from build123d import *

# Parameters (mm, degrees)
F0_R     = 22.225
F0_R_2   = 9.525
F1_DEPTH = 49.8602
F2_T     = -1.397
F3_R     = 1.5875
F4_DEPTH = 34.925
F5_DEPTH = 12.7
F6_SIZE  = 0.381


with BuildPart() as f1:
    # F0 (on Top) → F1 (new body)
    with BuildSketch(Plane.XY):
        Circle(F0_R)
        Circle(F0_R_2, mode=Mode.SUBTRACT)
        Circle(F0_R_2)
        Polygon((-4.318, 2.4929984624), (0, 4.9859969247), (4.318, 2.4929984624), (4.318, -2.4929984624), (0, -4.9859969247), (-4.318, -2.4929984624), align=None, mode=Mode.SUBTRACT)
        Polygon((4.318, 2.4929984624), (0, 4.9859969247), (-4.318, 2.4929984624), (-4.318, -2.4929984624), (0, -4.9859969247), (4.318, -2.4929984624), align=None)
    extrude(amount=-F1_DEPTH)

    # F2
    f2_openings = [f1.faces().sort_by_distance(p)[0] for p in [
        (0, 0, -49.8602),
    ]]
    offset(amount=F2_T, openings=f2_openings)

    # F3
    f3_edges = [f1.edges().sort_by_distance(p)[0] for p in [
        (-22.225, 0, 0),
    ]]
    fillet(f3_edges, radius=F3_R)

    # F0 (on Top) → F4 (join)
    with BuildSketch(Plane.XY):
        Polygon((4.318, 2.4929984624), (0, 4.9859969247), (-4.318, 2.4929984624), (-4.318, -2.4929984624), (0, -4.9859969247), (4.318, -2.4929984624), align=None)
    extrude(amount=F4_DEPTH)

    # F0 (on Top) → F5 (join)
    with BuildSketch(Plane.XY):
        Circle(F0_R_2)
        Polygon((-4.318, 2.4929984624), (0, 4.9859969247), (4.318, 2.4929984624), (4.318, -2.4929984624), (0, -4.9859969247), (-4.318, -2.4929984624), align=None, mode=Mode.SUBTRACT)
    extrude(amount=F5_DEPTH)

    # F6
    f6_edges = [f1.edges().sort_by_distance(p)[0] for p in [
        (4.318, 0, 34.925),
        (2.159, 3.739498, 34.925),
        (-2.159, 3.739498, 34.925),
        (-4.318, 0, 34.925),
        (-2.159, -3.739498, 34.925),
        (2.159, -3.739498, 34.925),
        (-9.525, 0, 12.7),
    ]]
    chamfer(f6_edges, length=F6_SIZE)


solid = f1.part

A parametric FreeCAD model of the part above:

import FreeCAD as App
import Part
import Sketcher
from FreeCAD import Vector
Q = App.Units.Quantity


def edges_at(feature, points):
    """Names of the edges that pass closest to the given points."""
    edges = feature.Shape.Edges
    near = lambda p: min(range(len(edges)), key=lambda i: edges[i].distToShape(Part.Vertex(*p))[0])
    return sorted({f"Edge{near(p) + 1}" for p in points})


def faces_at(feature, points):
    """Names of the faces that lie closest to the given points."""
    faces = feature.Shape.Faces
    near = lambda p: min(range(len(faces)), key=lambda i: faces[i].distToShape(Part.Vertex(*p))[0])
    return sorted({f"Face{near(p) + 1}" for p in points})


def add_polygon(sketch, points):
    """Adds a closed chain of lines whose ends are joined by coincident constraints."""
    first, n = sketch.GeometryCount, len(points)
    for a, b in zip(points, points[1:] + points[:1]):
        sketch.addGeometry(Part.LineSegment(App.Vector(*a, 0), App.Vector(*b, 0)), False)
    for i in range(n):
        sketch.addConstraint(Sketcher.Constraint("Coincident", first + i, 2, first + (i + 1) % n, 1))

doc = App.newDocument("Part")
body = doc.addObject("PartDesign::Body", "Body")

# Sketch on XY plane
sketch1 = body.newObject("Sketcher::SketchObject", "Sketch")
sketch1.AttachmentSupport = (doc.getObject("XY_Plane"), [""])
sketch1.MapMode = "FlatFace"
sketch1.addGeometry(Part.Circle(Vector(0, 0, 0), Vector(0, 0, 1), 22), False)
sketch1.addConstraint([
    Sketcher.Constraint("Coincident", 0, 3, -1, 1),
    Sketcher.Constraint("Diameter", 0, Q("1.75 in")),
])
pad1 = body.newObject("PartDesign::Pad", "Pad")
pad1.Profile = sketch1
pad1.Length = Q("1.963 in")
pad1.Reversed = True
doc.recompute()

thickness = body.newObject("PartDesign::Thickness", "Thickness")
thickness.Base = (pad1, faces_at(pad1, [(0, 0, -49.86)]))
thickness.Value = Q("0.055 in")
thickness.Reversed = True
thickness.Join = "Arc"
doc.recompute()

fillet = body.newObject("PartDesign::Fillet", "Fillet")
fillet.Base = (thickness, edges_at(thickness, [(-22.225, 0, 0)]))
fillet.Radius = Q("0.0625 in")

# Sketch on XY plane
sketch2 = body.newObject("Sketcher::SketchObject", "Sketch001")
sketch2.AttachmentSupport = (doc.getObject("XY_Plane"), [""])
sketch2.MapMode = "FlatFace"
add_polygon(sketch2, [(4.3, 2.5), (0, 5), (-4.3, 2.5), (-4.3, -2.5), (0, -5), (4.3, -2.5)])  # lines 0-5
sketch2.addConstraint([
    Sketcher.Constraint("Vertical", 2),
    Sketcher.Constraint("Vertical", 5),
    Sketcher.Constraint("Symmetric", 0, 2, 3, 2, -1, 1),
    Sketcher.Constraint("Symmetric", 1, 2, 4, 2, -1, 1),
    Sketcher.Constraint("PointOnObject", 0, 2, -2),
    Sketcher.Constraint("Parallel", 0, 3),
    Sketcher.Constraint("Horizontal", 2, 2, 4, 2),
    Sketcher.Constraint("Angle", 0, Q("150 deg")),
    Sketcher.Constraint("DistanceX", 1, 2, -1, 1, Q("0.17 in")),
    Sketcher.Constraint("DistanceY", -1, 1, 1, 2, 2.492998),
])
pad2 = body.newObject("PartDesign::Pad", "Pad001")
pad2.Profile = sketch2
pad2.Length = Q("1.375 in")

# Sketch on XY plane
sketch3 = body.newObject("Sketcher::SketchObject", "Sketch002")
sketch3.AttachmentSupport = (doc.getObject("XY_Plane"), [""])
sketch3.MapMode = "FlatFace"
sketch3.addGeometry(Part.Circle(Vector(0, 0, 0), Vector(0, 0, 1), 9.5), False)  # 0
add_polygon(sketch3, [(-4.3, -2.5), (-4.3, 2.5), (0, 5), (4.3, 2.5), (4.3, -2.5), (0, -5)])  # lines 1-6
sketch3.addConstraint([
    Sketcher.Constraint("Vertical", 1),
    Sketcher.Constraint("Vertical", 4),
    Sketcher.Constraint("Coincident", 0, 3, -1, 1),
    Sketcher.Constraint("Symmetric", 1, 2, 4, 2, -1, 1),
    Sketcher.Constraint("Symmetric", 2, 2, 5, 2, -1, 1),
    Sketcher.Constraint("PointOnObject", 2, 2, -2),
    Sketcher.Constraint("Parallel", 3, 6),
    Sketcher.Constraint("Horizontal", 1, 2, 3, 2),
    Sketcher.Constraint("Diameter", 0, Q("0.75 in")),
    Sketcher.Constraint("Angle", 2, Q("30 deg")),
    Sketcher.Constraint("DistanceX", 1, 2, -1, 1, Q("0.17 in")),
    Sketcher.Constraint("DistanceY", -1, 1, 1, 2, 2.492998),
])
pad3 = body.newObject("PartDesign::Pad", "Pad002")
pad3.Profile = sketch3
pad3.Length = Q("0.5 in")
doc.recompute()

chamfer = body.newObject("PartDesign::Chamfer", "Chamfer")
chamfer.Base = (pad3, edges_at(pad3, [
    (4.318, 0, 34.925),
    (2.159, 3.739, 34.925),
    (-2.159, 3.739, 34.925),
    (-4.318, 0, 34.925),
    (-2.159, -3.739, 34.925),
    (2.159, -3.739, 34.925),
    (-9.525, 0, 12.7),
]))
chamfer.Size = Q("0.015 in")

doc.recompute()
